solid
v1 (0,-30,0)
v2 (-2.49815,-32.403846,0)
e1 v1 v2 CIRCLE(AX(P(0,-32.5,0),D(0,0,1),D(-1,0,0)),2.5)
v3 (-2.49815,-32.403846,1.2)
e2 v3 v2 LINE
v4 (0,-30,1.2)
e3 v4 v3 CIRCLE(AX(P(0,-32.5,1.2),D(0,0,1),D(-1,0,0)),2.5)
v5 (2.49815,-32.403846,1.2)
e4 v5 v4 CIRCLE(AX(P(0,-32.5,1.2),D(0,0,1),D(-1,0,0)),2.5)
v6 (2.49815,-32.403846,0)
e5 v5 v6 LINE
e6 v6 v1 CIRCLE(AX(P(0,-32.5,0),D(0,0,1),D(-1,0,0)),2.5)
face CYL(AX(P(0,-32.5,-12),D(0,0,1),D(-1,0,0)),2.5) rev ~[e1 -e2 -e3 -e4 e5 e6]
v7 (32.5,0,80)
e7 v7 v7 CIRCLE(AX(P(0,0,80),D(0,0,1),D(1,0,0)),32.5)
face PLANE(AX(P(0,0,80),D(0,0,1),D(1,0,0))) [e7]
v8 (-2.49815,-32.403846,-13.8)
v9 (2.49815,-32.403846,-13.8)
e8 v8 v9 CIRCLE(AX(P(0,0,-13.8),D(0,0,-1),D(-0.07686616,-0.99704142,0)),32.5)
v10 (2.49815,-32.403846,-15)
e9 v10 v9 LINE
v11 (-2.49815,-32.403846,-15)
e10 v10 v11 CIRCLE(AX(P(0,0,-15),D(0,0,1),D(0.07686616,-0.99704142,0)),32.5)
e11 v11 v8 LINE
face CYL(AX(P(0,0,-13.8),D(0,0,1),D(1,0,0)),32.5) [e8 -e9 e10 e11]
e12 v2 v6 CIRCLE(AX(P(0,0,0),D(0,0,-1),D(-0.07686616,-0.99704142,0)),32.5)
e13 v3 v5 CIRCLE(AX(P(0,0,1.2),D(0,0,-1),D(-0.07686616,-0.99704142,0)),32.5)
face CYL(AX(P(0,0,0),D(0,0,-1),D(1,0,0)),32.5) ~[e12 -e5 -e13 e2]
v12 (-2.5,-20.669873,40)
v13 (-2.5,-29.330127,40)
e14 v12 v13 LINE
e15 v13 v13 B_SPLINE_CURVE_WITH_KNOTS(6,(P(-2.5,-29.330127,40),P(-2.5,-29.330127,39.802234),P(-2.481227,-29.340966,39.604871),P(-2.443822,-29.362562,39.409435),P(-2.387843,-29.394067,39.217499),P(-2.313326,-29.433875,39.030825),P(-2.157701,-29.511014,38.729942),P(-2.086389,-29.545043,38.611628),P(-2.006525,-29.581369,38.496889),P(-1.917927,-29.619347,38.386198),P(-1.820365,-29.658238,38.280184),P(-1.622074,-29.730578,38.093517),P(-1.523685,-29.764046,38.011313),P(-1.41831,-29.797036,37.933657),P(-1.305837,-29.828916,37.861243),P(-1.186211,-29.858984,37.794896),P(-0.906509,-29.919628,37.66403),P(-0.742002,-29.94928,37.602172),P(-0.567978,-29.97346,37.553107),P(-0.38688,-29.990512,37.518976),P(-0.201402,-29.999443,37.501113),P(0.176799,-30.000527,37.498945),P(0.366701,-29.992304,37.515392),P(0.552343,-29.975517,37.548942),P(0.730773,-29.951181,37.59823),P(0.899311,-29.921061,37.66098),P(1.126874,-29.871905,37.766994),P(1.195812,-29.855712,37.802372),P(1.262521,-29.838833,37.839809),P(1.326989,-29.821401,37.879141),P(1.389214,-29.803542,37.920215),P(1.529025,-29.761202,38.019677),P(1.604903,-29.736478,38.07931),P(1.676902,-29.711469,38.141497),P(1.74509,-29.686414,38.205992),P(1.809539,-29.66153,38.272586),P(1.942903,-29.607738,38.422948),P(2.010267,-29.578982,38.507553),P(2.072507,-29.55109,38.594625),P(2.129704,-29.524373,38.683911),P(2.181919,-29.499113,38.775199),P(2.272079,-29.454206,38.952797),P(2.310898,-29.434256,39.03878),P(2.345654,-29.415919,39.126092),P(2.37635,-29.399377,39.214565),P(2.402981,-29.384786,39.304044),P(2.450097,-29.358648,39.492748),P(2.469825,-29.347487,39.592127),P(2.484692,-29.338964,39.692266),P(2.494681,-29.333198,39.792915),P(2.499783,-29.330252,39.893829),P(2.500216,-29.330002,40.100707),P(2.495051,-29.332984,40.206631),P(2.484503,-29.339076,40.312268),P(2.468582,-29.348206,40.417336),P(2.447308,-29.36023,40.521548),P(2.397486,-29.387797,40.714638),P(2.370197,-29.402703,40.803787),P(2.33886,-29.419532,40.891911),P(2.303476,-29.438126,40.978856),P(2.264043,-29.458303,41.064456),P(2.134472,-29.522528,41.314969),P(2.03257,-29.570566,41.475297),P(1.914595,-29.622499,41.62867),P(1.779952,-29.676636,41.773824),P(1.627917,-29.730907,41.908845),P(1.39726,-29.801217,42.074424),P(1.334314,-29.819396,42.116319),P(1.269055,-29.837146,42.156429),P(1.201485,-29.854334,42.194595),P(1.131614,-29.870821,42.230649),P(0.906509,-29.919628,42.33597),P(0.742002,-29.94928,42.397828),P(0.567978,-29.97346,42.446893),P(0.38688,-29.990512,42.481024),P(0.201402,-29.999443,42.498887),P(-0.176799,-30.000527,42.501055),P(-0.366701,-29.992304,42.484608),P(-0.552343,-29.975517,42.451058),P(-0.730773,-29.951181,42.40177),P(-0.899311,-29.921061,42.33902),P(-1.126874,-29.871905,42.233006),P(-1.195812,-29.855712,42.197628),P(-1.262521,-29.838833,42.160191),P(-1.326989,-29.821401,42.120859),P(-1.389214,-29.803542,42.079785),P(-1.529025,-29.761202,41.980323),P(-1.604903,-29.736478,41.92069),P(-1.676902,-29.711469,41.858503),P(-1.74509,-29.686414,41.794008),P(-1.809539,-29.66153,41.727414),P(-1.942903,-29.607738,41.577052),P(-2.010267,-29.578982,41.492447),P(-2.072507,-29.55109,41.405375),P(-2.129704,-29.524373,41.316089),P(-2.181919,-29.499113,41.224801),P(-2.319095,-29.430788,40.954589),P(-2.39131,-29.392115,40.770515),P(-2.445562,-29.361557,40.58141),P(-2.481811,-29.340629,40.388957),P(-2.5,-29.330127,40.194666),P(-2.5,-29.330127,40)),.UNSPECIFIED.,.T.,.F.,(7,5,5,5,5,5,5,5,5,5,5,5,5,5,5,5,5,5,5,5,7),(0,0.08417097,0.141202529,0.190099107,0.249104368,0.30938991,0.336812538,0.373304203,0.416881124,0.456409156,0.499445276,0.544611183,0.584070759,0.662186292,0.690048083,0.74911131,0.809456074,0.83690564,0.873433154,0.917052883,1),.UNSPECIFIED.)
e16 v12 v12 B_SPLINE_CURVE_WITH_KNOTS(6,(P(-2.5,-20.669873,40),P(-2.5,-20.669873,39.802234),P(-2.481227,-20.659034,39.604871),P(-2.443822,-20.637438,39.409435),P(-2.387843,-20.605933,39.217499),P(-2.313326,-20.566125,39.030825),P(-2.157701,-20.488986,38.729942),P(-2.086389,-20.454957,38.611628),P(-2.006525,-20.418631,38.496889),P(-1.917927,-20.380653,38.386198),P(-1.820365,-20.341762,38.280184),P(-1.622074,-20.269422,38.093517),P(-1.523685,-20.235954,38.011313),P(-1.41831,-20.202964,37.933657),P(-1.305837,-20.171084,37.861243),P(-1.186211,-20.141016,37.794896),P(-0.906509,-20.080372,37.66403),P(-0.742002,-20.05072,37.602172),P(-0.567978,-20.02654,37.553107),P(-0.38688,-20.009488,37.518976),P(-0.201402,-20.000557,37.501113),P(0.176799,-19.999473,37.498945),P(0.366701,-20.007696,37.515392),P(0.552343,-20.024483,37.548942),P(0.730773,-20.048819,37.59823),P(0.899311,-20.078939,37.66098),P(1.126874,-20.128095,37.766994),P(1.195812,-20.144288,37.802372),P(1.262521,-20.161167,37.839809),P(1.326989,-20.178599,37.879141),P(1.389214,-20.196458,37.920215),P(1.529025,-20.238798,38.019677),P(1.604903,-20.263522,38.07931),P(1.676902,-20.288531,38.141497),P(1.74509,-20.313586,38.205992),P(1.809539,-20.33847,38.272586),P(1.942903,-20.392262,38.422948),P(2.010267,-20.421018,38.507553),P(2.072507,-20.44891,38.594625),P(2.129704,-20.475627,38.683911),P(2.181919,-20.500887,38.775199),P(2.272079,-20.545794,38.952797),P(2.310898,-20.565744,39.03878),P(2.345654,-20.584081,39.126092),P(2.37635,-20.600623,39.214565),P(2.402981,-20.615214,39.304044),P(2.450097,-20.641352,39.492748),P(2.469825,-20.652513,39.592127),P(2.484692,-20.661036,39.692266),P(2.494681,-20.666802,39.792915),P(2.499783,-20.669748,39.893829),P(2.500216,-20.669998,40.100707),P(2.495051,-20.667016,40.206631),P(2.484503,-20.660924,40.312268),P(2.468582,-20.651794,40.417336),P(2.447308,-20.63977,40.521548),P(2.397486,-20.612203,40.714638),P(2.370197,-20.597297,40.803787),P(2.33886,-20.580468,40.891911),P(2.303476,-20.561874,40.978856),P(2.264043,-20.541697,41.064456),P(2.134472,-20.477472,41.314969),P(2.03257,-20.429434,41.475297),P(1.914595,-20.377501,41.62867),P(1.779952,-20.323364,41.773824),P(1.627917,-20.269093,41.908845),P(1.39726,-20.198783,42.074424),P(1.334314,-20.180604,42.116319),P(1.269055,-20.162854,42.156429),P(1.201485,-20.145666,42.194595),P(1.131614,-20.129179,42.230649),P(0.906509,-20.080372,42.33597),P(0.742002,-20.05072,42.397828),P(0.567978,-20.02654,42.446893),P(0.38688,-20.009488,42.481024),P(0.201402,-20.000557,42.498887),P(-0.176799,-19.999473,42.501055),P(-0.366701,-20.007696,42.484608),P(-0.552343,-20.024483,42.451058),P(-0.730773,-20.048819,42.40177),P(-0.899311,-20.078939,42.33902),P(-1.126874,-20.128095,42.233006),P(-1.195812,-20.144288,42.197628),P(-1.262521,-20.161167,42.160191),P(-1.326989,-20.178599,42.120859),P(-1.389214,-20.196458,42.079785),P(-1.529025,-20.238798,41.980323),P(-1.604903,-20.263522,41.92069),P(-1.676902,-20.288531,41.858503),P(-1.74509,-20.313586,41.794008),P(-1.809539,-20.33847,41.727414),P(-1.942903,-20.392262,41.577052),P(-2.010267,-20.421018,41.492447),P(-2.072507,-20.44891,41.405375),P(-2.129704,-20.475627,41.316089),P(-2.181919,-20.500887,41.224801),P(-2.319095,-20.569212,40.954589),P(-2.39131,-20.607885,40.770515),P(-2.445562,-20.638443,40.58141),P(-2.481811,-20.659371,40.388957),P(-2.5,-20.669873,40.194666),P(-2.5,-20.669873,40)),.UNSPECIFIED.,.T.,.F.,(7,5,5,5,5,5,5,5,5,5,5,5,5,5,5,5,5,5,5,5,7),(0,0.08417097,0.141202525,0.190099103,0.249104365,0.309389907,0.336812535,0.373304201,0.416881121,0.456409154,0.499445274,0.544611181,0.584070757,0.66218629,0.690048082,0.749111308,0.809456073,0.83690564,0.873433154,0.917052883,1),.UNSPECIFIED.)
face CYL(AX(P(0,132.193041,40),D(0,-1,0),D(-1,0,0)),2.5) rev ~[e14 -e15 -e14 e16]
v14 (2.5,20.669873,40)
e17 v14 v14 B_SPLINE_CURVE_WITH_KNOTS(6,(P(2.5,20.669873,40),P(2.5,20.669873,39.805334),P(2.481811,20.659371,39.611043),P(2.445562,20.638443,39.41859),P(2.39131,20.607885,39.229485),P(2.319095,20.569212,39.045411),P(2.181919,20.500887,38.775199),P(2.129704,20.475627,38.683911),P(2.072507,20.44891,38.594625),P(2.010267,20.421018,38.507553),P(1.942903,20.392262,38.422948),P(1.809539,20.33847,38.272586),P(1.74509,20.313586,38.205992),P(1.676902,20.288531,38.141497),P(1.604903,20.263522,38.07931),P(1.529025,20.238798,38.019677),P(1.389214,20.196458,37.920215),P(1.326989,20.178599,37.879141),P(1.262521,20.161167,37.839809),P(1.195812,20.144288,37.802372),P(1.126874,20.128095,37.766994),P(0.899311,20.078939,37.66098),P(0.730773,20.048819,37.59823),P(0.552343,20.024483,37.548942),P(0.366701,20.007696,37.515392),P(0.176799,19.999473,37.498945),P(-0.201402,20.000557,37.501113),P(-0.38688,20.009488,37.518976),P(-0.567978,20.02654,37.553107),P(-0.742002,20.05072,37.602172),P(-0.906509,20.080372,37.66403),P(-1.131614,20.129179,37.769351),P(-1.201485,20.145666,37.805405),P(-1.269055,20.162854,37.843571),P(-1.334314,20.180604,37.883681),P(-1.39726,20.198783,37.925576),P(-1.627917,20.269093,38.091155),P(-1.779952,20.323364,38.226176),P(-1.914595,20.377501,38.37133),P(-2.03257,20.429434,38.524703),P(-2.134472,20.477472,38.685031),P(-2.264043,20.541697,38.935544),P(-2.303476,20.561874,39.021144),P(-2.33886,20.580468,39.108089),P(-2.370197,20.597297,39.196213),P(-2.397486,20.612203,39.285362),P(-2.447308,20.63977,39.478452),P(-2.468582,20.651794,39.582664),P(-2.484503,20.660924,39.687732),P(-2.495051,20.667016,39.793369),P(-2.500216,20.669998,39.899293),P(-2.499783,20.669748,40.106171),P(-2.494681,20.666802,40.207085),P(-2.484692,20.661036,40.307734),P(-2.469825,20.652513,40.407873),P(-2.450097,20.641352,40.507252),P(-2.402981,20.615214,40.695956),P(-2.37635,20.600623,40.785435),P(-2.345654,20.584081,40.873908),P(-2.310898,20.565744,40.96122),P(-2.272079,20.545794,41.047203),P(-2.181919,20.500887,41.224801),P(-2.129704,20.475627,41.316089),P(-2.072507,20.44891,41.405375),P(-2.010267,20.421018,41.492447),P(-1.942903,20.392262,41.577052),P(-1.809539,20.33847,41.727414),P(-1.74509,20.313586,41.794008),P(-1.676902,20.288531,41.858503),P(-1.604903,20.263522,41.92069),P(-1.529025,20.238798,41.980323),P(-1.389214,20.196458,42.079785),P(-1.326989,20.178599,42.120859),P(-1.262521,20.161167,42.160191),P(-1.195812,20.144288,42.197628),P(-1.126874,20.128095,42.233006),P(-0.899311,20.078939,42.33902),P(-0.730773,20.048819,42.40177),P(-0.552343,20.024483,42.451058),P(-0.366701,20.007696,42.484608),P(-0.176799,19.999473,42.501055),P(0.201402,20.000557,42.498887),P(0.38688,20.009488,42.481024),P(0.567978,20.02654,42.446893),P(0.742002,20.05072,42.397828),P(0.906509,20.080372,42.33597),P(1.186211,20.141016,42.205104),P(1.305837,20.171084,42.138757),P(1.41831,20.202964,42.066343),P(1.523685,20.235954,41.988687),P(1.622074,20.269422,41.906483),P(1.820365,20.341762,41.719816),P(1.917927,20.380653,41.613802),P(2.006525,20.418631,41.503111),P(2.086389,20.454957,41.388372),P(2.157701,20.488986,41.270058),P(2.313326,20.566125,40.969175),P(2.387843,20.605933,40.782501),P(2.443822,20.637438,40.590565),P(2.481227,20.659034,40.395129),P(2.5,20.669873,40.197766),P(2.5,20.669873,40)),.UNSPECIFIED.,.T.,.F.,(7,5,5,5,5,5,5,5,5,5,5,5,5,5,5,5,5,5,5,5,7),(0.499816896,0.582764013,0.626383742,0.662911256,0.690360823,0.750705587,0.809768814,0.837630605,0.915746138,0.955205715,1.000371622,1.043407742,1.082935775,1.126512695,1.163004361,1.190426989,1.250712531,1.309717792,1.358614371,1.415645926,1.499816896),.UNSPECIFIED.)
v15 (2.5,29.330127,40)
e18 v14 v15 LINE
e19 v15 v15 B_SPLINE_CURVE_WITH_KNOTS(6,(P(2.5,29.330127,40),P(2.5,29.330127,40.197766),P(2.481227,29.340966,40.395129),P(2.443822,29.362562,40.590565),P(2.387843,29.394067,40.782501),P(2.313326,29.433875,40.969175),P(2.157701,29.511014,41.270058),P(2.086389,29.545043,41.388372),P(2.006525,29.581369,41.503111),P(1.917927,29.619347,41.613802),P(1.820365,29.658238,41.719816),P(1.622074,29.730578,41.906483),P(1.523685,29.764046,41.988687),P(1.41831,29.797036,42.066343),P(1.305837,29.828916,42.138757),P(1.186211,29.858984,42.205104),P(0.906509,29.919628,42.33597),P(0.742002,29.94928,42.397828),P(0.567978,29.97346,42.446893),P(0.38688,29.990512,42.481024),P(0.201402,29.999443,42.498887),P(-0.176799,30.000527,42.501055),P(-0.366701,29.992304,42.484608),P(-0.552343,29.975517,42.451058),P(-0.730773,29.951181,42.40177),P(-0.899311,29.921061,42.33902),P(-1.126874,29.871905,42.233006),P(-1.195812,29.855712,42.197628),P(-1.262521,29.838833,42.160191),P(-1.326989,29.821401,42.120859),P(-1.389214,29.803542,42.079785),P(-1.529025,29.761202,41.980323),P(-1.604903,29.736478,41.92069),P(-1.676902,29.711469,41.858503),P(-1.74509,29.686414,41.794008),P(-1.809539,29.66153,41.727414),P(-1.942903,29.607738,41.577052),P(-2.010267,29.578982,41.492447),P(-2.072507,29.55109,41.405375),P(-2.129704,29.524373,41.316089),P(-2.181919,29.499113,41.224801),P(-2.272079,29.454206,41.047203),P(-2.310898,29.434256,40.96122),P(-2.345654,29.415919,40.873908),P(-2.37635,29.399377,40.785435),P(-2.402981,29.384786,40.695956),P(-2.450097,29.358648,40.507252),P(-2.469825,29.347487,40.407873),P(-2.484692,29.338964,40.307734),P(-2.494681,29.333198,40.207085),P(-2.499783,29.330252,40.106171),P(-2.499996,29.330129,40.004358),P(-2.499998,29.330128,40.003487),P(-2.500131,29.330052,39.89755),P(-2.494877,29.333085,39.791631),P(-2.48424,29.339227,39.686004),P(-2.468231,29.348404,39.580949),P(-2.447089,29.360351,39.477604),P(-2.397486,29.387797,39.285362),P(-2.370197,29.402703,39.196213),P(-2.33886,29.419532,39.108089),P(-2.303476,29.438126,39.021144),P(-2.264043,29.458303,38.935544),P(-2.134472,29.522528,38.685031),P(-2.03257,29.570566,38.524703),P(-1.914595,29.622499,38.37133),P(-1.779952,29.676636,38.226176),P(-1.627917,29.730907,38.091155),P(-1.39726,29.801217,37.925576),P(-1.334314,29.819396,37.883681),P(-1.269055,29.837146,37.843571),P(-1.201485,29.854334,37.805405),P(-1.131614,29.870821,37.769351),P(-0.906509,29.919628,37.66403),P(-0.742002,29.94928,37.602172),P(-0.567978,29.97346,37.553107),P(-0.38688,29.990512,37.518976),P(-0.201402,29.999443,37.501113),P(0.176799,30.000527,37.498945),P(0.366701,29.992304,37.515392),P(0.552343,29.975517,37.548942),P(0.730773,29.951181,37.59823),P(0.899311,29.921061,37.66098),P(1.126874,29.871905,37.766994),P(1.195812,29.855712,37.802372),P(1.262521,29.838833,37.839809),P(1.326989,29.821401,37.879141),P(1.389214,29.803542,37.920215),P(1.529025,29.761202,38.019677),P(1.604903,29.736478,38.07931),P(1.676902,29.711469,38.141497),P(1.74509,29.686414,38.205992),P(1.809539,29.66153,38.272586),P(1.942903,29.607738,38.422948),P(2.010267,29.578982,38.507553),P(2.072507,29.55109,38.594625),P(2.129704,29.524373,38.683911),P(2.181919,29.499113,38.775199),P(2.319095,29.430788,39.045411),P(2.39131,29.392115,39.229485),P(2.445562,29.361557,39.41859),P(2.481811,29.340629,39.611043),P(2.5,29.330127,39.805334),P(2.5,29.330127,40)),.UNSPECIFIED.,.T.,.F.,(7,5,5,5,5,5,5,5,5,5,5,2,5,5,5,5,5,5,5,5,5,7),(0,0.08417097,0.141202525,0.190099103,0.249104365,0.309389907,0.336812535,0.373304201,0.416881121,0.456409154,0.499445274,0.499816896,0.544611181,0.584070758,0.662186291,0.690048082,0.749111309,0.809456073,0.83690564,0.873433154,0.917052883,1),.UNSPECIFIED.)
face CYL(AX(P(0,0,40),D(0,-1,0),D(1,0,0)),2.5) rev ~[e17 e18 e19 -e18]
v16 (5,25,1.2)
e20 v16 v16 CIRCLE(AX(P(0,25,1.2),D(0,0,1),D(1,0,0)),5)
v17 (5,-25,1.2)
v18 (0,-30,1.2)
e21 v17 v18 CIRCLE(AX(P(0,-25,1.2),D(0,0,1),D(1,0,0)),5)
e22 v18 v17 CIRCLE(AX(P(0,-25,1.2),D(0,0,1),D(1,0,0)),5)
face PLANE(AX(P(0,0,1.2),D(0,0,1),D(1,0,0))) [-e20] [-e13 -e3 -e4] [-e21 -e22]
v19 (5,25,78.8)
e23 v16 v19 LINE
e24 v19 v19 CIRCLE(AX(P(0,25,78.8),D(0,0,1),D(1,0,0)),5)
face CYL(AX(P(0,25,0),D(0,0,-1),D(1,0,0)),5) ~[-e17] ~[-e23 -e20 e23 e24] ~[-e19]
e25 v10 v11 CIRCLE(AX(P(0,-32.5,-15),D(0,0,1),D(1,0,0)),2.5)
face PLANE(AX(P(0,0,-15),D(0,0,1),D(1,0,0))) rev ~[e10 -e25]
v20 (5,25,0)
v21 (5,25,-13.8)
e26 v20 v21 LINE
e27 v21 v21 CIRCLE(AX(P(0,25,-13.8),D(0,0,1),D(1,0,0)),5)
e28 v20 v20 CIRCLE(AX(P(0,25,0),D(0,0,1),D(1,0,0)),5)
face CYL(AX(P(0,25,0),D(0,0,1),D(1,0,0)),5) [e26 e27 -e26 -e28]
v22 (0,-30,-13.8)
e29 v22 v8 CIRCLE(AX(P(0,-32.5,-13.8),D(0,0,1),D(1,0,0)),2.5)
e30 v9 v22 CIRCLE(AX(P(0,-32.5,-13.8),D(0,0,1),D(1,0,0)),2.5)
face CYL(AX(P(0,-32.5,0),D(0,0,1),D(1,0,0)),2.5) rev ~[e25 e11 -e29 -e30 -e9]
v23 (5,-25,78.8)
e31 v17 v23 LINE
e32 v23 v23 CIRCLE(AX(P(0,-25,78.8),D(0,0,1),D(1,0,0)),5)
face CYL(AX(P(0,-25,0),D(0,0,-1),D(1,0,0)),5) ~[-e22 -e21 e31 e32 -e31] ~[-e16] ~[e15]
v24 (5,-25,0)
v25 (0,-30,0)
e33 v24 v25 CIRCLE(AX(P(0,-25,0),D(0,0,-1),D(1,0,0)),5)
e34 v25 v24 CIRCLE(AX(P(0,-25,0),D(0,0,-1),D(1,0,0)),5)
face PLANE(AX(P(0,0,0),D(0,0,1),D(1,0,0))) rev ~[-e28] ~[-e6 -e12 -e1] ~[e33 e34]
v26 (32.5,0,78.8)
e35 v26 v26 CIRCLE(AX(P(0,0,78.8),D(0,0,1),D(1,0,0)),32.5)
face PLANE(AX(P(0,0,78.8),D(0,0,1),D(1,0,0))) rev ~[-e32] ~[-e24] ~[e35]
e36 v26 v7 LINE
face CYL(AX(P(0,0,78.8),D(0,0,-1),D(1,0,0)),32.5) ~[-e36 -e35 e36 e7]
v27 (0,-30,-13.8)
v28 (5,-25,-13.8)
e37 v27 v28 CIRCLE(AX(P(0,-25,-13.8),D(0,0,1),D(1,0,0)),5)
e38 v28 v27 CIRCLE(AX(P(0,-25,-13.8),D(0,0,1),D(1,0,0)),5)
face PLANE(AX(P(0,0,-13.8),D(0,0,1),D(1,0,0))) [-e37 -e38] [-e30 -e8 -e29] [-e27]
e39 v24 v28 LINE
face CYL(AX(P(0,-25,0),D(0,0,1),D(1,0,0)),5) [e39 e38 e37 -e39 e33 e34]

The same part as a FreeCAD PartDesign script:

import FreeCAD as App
import Part
import Sketcher

V = App.Vector

doc = App.newDocument("Part")
body = doc.addObject("PartDesign::Body", "Body")

# Sketch on XY plane
sketch1 = body.newObject("Sketcher::SketchObject", "Sketch")
sketch1.AttachmentSupport = (doc.getObject("XY_Plane"), [""])
sketch1.MapMode = "FlatFace"
sketch1.AttachmentOffset = App.Placement(V(0, 0, 78.8), App.Rotation())
sketch1.addGeometry(Part.Circle(V(0, 0, 0), V(0, 0, 1), 32), False)
sketch1.addGeometry(Part.Circle(V(0, -25, 0), V(0, 0, 1), 5), False)
sketch1.addGeometry(Part.Circle(V(0, 25, 0), V(0, 0, 1), 5), False)
sketch1.addConstraint(Sketcher.Constraint("Coincident", 0, 3, -1, 1))
sketch1.addConstraint(Sketcher.Constraint("Equal", 1, 2))
sketch1.addConstraint(Sketcher.Constraint("Symmetric", 1, 3, 2, 3, -1, 1))
sketch1.addConstraint(Sketcher.Constraint("PointOnObject", 1, 3, -2))
sketch1.addConstraint(Sketcher.Constraint("Diameter", 0, 65.0))
sketch1.addConstraint(Sketcher.Constraint("Diameter", 1, 10.0))
sketch1.addConstraint(Sketcher.Constraint("DistanceY", 1, 3, -1, 1, 25.0))
pad1 = body.newObject("PartDesign::Pad", "Pad")
pad1.Profile = sketch1
pad1.Length = 1.2

# Sketch on XY plane
sketch2 = body.newObject("Sketcher::SketchObject", "Sketch001")
sketch2.AttachmentSupport = (doc.getObject("XY_Plane"), [""])
sketch2.MapMode = "FlatFace"
sketch2.addGeometry(Part.Circle(V(0, 25, 0), V(0, 0, 1), 5), False)
sketch2.addGeometry(Part.Circle(V(0, -25, 0), V(0, 0, 1), 5), False)
sketch2.addConstraint(Sketcher.Constraint("Equal", 0, 1))
sketch2.addConstraint(Sketcher.Constraint("Symmetric", 0, 3, 1, 3, -1, 1))
sketch2.addConstraint(Sketcher.Constraint("PointOnObject", 0, 3, -2))
sketch2.addConstraint(Sketcher.Constraint("Diameter", 0, 10.0))
sketch2.addConstraint(Sketcher.Constraint("DistanceY", -1, 1, 0, 3, 25.0))
pad2 = body.newObject("PartDesign::Pad", "Pad001")
pad2.Profile = sketch2
pad2.Type = "TwoLengths"
pad2.Length = 80
pad2.Length2 = 15

# Sketch on XY plane
sketch3 = body.newObject("Sketcher::SketchObject", "Sketch002")
sketch3.AttachmentSupport = (doc.getObject("XY_Plane"), [""])
sketch3.MapMode = "FlatFace"
sketch3.addGeometry(Part.Circle(V(0, 0, 0), V(0, 0, 1), 32), False)
sketch3.addGeometry(Part.Circle(V(0, -25, 0), V(0, 0, 1), 5), False)
sketch3.addGeometry(Part.Circle(V(0, 25, 0), V(0, 0, 1), 5), False)
sketch3.addConstraint(Sketcher.Constraint("Coincident", 0, 3, -1, 1))
sketch3.addConstraint(Sketcher.Constraint("Equal", 1, 2))
sketch3.addConstraint(Sketcher.Constraint("Symmetric", 1, 3, 2, 3, -1, 1))
sketch3.addConstraint(Sketcher.Constraint("PointOnObject", 1, 3, -2))
sketch3.addConstraint(Sketcher.Constraint("Diameter", 0, 65.0))
sketch3.addConstraint(Sketcher.Constraint("Diameter", 1, 10.0))
sketch3.addConstraint(Sketcher.Constraint("DistanceY", 1, 3, -1, 1, 25.0))
pad3 = body.newObject("PartDesign::Pad", "Pad002")
pad3.Profile = sketch3
pad3.Length = 1.2

# Sketch on XY plane
sketch4 = body.newObject("Sketcher::SketchObject", "Sketch003")
sketch4.AttachmentSupport = (doc.getObject("XY_Plane"), [""])
sketch4.MapMode = "FlatFace"
sketch4.AttachmentOffset = App.Placement(V(0, 0, -13.8), App.Rotation())
sketch4.addGeometry(Part.Circle(V(0, 0, 0), V(0, 0, 1), 32), False)
sketch4.addGeometry(Part.Circle(V(0, -25, 0), V(0, 0, 1), 5), False)
sketch4.addGeometry(Part.Circle(V(0, 25, 0), V(0, 0, 1), 5), False)
sketch4.addConstraint(Sketcher.Constraint("Coincident", 0, 3, -1, 1))
sketch4.addConstraint(Sketcher.Constraint("Equal", 1, 2))
sketch4.addConstraint(Sketcher.Constraint("Symmetric", 1, 3, 2, 3, -1, 1))
sketch4.addConstraint(Sketcher.Constraint("PointOnObject", 1, 3, -2))
sketch4.addConstraint(Sketcher.Constraint("Diameter", 0, 65.0))
sketch4.addConstraint(Sketcher.Constraint("Diameter", 1, 10.0))
sketch4.addConstraint(Sketcher.Constraint("DistanceY", 1, 3, -1, 1, 25.0))
pad4 = body.newObject("PartDesign::Pad", "Pad003")
pad4.Profile = sketch4
pad4.Length = 1.2
pad4.Reversed = True

# Sketch on XY plane
sketch5 = body.newObject("Sketcher::SketchObject", "Sketch004")
sketch5.AttachmentSupport = (doc.getObject("XY_Plane"), [""])
sketch5.MapMode = "FlatFace"
sketch5.addGeometry(Part.Circle(V(0, -32.5, 0), V(0, 0, 1), 2.5), False)
sketch5.addConstraint(Sketcher.Constraint("PointOnObject", 0, 3, -2))
sketch5.addConstraint(Sketcher.Constraint("Diameter", 0, 5.0))
sketch5.addConstraint(Sketcher.Constraint("DistanceY", 0, 3, -1, 1, 32.5))
pocket1 = body.newObject("PartDesign::Pocket", "Pocket")
pocket1.Profile = sketch5
pocket1.Type = "ThroughAll"

# Sketch on XY plane
sketch6 = body.newObject("Sketcher::SketchObject", "Sketch005")
sketch6.AttachmentSupport = (doc.getObject("XY_Plane"), [""])
sketch6.MapMode = "FlatFace"
sketch6.addGeometry(Part.Circle(V(0, -32.5, 0), V(0, 0, 1), 2.5), False)
sketch6.addConstraint(Sketcher.Constraint("PointOnObject", 0, 3, -2))
sketch6.addConstraint(Sketcher.Constraint("Diameter", 0, 5.0))
sketch6.addConstraint(Sketcher.Constraint("DistanceY", 0, 3, -1, 1, 32.5))
doc.recompute()
hole = body.newObject("PartDesign::Hole", "Hole")
hole.Profile = sketch6
hole.ThreadType = "None"
hole.Diameter = 5
hole.DepthType = "Dimension"
hole.Depth = 12
hole.DrillPoint = "Angled"
hole.DrillPointAngle = 118
hole.Reversed = True

# Sketch on XZ plane
sketch7 = body.newObject("Sketcher::SketchObject", "Sketch006")
sketch7.AttachmentSupport = (doc.getObject("XZ_Plane"), [""])
sketch7.MapMode = "FlatFace"
sketch7.addGeometry(Part.Circle(V(0, 40, 0), V(0, 0, 1), 2.5), False)
sketch7.addConstraint(Sketcher.Constraint("PointOnObject", 0, 3, -2))
sketch7.addConstraint(Sketcher.Constraint("Diameter", 0, 5.0))
sketch7.addConstraint(Sketcher.Constraint("DistanceY", -1, 1, 0, 3, 40.0))
pocket2 = body.newObject("PartDesign::Pocket", "Pocket001")
pocket2.Profile = sketch7
pocket2.Type = "ThroughAll"

# Sketch on XZ plane
sketch8 = body.newObject("Sketcher::SketchObject", "Sketch007")
sketch8.AttachmentSupport = (doc.getObject("XZ_Plane"), [""])
sketch8.MapMode = "FlatFace"
sketch8.addGeometry(Part.Circle(V(0, 40, 0), V(0, 0, 1), 2.5), False)
sketch8.addConstraint(Sketcher.Constraint("PointOnObject", 0, 3, -2))
sketch8.addConstraint(Sketcher.Constraint("Diameter", 0, 5.0))
sketch8.addConstraint(Sketcher.Constraint("DistanceY", -1, 1, 0, 3, 40.0))
doc.recompute()
hole2 = body.newObject("PartDesign::Hole", "Hole001")
hole2.Profile = sketch8
hole2.ThreadType = "None"
hole2.Diameter = 5
hole2.DepthType = "ThroughAll"
hole2.Reversed = True

doc.recompute()
